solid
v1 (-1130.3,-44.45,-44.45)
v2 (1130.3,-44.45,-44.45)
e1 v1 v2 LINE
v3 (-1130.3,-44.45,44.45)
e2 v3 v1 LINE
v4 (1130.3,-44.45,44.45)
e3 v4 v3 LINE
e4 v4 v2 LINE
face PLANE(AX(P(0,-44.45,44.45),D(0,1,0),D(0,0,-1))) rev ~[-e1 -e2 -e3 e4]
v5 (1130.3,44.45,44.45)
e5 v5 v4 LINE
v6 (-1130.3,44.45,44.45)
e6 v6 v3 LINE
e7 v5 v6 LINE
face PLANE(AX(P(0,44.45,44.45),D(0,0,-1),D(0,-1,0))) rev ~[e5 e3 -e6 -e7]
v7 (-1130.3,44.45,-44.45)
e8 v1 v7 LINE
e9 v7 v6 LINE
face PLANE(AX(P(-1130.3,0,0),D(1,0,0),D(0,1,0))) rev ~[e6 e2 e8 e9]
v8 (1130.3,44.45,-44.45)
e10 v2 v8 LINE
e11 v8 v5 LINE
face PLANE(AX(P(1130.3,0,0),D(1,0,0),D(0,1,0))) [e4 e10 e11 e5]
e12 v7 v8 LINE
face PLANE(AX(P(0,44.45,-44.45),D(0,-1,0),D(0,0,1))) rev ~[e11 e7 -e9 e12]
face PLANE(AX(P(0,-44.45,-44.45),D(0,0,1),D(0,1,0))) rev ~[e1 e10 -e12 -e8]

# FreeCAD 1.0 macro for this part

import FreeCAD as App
import Part
import Sketcher
from FreeCAD import Vector
Q = App.Units.Quantity


def add_polygon(sketch, points):
    """Adds a closed chain of lines whose ends are joined by coincident constraints."""
    first, n = sketch.GeometryCount, len(points)
    for a, b in zip(points, points[1:] + points[:1]):
        sketch.addGeometry(Part.LineSegment(App.Vector(*a, 0), App.Vector(*b, 0)), False)
    for i in range(n):
        sketch.addConstraint(Sketcher.Constraint("Coincident", first + i, 2, first + (i + 1) % n, 1))

doc = App.newDocument("Part")
params = doc.addObject("Spreadsheet::Sheet", "Params")
for row, (alias, value) in enumerate([
    ("sketch1_width", "3.5 in"),
    ("pad1_length", "89 in"),
], start=1):
    params.set(f"A{row}", alias)
    params.set(f"B{row}", "=" + value)
    params.setAlias(f"B{row}", alias)

body = doc.addObject("PartDesign::Body", "Body")

# Sketch on YZ plane
sketch1 = body.newObject("Sketcher::SketchObject", "Sketch")
sketch1.AttachmentSupport = (doc.getObject("YZ_Plane"), [""])
sketch1.MapMode = "FlatFace"
add_polygon(sketch1, [(-44, 44), (-44, -44), (44, -44), (44, 44)])  # lines 0-3
sketch1.addConstraint([
    Sketcher.Constraint("Vertical", 0),
    Sketcher.Constraint("Horizontal", 1),
    Sketcher.Constraint("Vertical", 2),
    Sketcher.Constraint("Horizontal", 3),
    Sketcher.Constraint("Symmetric", 0, 2, 2, 2, -1, 1),
    Sketcher.Constraint("Equal", 3, 0),
    Sketcher.Constraint("DistanceX", 1, 1, 1, 2, Q("3.5 in")),
])
sketch1.setExpression("Constraints[10]", "Params.sketch1_width")
pad1 = body.newObject("PartDesign::Pad", "Pad")
pad1.Profile = sketch1
pad1.setExpression("Length", "Params.pad1_length")
pad1.Midplane = True

doc.recompute()
